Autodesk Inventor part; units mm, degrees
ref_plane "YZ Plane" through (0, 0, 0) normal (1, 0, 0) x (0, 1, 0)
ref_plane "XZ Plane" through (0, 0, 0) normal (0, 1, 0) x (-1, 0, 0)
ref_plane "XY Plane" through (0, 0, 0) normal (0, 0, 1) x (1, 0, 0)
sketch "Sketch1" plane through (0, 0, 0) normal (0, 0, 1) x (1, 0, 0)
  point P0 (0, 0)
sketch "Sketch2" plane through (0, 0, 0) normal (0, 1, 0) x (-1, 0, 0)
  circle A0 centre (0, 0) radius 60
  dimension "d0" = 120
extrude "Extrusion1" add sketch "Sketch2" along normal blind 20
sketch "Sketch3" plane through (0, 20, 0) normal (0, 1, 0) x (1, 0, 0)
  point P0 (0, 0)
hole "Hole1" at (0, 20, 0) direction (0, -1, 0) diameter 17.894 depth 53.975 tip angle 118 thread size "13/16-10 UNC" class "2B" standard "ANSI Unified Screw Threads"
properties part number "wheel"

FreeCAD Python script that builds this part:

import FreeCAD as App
import Part
import Sketcher
from FreeCAD import Vector
Q = App.Units.Quantity

doc = App.newDocument("Part")
body = doc.addObject("PartDesign::Body", "Body")

sketch1 = doc.addObject("Sketcher::SketchObject", "Sketch")
body.addObject(sketch1)
sketch1.AttachmentSupport = (doc.XZ_Plane, [""])
sketch1.MapMode = "FlatFace"
sketch1.addGeometry(Part.Circle(Vector(0, 0, 0), Vector(0, 0, 1), 60), False)
sketch1.addConstraint([
    Sketcher.Constraint("Coincident", 0, 3, -1, 1),
    Sketcher.Constraint("Diameter", 0, Q("4.7244 in")),
])
pad1 = doc.addObject("PartDesign::Pad", "Pad")
body.addObject(pad1)
pad1.Profile = sketch1
pad1.Length = Q("0.7874016 in")
pad1.Reversed = True

sketch2 = doc.addObject("Sketcher::SketchObject", "Sketch001")
body.addObject(sketch2)
sketch2.AttachmentSupport = (doc.XZ_Plane, [""])
sketch2.MapMode = "FlatFace"
sketch2.AttachmentOffset = App.Placement(Vector(0, 0, -0.7874016 * 25.4), App.Rotation())
sketch2.addGeometry(Part.Circle(Vector(0, 0, 0), Vector(0, 0, 1), 9), False)
sketch2.addConstraint([
    Sketcher.Constraint("Coincident", 0, 3, -1, 1),
    Sketcher.Constraint("Diameter", 0, Q("0.7045 in")),
])
doc.recompute()
hole = doc.addObject("PartDesign::Hole", "Hole")
body.addObject(hole)
hole.Profile = sketch2
hole.ThreadType = "None"
hole.Diameter = Q("0.7044882 in")
hole.DepthType = "Dimension"
hole.Depth = Q("2.125 in")
hole.DrillPoint = "Angled"
hole.DrillPointAngle = 118
hole.Reversed = True

doc.recompute()
